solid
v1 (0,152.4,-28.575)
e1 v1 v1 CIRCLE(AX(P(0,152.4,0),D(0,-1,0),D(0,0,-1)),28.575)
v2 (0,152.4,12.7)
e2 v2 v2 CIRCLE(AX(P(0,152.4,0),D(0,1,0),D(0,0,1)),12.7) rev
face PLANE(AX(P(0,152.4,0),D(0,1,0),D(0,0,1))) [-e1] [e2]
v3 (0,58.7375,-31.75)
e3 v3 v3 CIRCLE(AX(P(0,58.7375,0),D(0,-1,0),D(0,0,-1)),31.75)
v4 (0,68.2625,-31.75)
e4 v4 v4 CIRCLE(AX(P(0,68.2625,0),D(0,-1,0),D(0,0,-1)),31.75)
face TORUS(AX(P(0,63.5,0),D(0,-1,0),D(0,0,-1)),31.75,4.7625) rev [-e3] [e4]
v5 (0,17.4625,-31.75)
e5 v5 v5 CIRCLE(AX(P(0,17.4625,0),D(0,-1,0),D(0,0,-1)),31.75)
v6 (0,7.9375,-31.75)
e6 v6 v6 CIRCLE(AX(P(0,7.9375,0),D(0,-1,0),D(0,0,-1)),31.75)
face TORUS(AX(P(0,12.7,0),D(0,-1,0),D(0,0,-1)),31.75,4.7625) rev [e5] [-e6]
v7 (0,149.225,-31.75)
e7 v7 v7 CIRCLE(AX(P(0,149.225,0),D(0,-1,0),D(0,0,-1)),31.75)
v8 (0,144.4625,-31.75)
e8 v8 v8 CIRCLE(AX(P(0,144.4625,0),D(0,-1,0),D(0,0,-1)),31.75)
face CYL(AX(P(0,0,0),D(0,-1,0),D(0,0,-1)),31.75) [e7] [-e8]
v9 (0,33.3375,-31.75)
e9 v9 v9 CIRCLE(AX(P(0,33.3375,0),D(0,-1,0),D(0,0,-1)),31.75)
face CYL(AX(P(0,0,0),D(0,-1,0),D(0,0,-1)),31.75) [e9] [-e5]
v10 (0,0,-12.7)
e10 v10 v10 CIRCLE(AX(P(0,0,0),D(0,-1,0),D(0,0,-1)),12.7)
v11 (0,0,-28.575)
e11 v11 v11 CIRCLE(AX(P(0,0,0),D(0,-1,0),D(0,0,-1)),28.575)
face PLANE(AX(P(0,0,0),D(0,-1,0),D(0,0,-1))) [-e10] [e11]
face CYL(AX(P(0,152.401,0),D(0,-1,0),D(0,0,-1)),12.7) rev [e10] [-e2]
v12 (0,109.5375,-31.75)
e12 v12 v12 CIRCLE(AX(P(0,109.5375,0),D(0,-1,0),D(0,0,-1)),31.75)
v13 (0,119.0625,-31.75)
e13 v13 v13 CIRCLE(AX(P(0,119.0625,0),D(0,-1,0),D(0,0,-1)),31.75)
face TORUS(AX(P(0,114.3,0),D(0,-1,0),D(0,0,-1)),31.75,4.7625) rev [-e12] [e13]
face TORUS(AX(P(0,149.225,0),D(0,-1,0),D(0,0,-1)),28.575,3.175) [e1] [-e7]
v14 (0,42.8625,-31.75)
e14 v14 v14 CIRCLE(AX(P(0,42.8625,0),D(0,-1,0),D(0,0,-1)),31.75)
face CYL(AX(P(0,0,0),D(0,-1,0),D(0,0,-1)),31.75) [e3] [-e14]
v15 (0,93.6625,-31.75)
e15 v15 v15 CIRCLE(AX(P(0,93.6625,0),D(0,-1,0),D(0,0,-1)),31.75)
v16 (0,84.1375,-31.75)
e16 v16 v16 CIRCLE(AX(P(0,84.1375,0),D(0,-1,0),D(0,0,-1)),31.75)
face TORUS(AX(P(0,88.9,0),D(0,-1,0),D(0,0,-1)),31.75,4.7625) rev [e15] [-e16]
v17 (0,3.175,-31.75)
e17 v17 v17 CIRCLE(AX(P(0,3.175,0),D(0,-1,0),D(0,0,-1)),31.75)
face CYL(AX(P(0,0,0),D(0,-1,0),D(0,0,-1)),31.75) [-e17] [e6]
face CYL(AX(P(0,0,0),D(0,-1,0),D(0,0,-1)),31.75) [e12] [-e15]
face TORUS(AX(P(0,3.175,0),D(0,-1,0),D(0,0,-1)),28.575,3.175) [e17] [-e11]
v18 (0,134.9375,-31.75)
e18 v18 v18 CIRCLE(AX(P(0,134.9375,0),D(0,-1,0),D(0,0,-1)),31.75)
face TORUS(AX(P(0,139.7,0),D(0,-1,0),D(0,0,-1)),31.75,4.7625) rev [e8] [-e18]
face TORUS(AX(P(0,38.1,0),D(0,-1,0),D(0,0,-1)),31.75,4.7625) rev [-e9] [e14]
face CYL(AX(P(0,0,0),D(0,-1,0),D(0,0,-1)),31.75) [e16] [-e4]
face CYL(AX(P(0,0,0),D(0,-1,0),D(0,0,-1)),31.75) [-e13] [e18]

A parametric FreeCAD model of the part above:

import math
import FreeCAD as App
import Part
import Sketcher
from FreeCAD import Vector
Q = App.Units.Quantity

doc = App.newDocument("Part")
params = doc.addObject("Spreadsheet::Sheet", "Params")
for row, (alias, value) in enumerate([
    ("sketch1_width", "6 in"),
    ("sketch1_radius", "0.125 in"),
    ("sketch1_radius2", "0.1875 in"),
    ("sketch1_height", "1.125 in"),
    ("revolution_angle", "360 deg"),
    ("sketch2_diameter", "1 in"),
], start=1):
    params.set(f"A{row}", alias)
    params.set(f"B{row}", "=" + value)
    params.setAlias(f"B{row}", alias)

body = doc.addObject("PartDesign::Body", "Body")

# Sketch on YZ plane
sketch1 = body.newObject("Sketcher::SketchObject", "Sketch")
sketch1.AttachmentSupport = (doc.getObject("YZ_Plane"), [""])
sketch1.MapMode = "FlatFace"
sketch1.addGeometry([
    Part.LineSegment(Vector(144.5, -31.8, 0), Vector(149.2, -31.8, 0)),  # 0
    Part.ArcOfCircle(Part.Circle(Vector(149.2, -28.6, 0), Vector(0, 0, 1), 3.2), math.radians(-90), math.radians(0)),  # 1
    Part.LineSegment(Vector(152.4, -28.6, 0), Vector(152.4, 0, 0)),  # 2
    Part.LineSegment(Vector(152.4, 0, 0), Vector(0, 0, 0)),  # 3
    Part.LineSegment(Vector(0, 0, 0), Vector(0, -28.6, 0)),  # 4
    Part.ArcOfCircle(Part.Circle(Vector(3.2, -28.6, 0), Vector(0, 0, 1), 3.2), math.radians(-180), math.radians(-90)),  # 5
    Part.LineSegment(Vector(3.2, -31.8, 0), Vector(7.9, -31.8, 0)),  # 6
    Part.ArcOfCircle(Part.Circle(Vector(12.7, -31.8, 0), Vector(0, 0, 1), 4.8), math.radians(0), math.radians(180)),  # 7
    Part.LineSegment(Vector(17.5, -31.8, 0), Vector(33.3, -31.8, 0)),  # 8
    Part.ArcOfCircle(Part.Circle(Vector(38.1, -31.8, 0), Vector(0, 0, 1), 4.8), math.radians(0), math.radians(180)),  # 9
    Part.LineSegment(Vector(42.9, -31.8, 0), Vector(58.7, -31.8, 0)),  # 10
    Part.ArcOfCircle(Part.Circle(Vector(63.5, -31.8, 0), Vector(0, 0, 1), 4.8), math.radians(0), math.radians(180)),  # 11
    Part.LineSegment(Vector(68.3, -31.8, 0), Vector(84.1, -31.8, 0)),  # 12
    Part.ArcOfCircle(Part.Circle(Vector(88.9, -31.8, 0), Vector(0, 0, 1), 4.8), math.radians(0), math.radians(180)),  # 13
    Part.LineSegment(Vector(93.7, -31.8, 0), Vector(109.5, -31.8, 0)),  # 14
    Part.ArcOfCircle(Part.Circle(Vector(114.3, -31.8, 0), Vector(0, 0, 1), 4.8), math.radians(0), math.radians(180)),  # 15
    Part.LineSegment(Vector(119.1, -31.8, 0), Vector(134.9, -31.8, 0)),  # 16
    Part.ArcOfCircle(Part.Circle(Vector(139.7, -31.8, 0), Vector(0, 0, 1), 4.8), math.radians(0), math.radians(180)),  # 17
], False)
sketch1.addConstraint([
    Sketcher.Constraint("Tangent", 0, 2, 1, 1),
    Sketcher.Constraint("Tangent", 1, 2, 2, 1),
    Sketcher.Constraint("Coincident", 2, 2, 3, 1),
    Sketcher.Constraint("Coincident", 3, 2, 4, 1),
    Sketcher.Constraint("Tangent", 4, 2, 5, 1),
    Sketcher.Constraint("Tangent", 5, 2, 6, 1),
    Sketcher.Constraint("Coincident", 6, 2, 7, 2),
    Sketcher.Constraint("Coincident", 7, 1, 8, 1),
    Sketcher.Constraint("Coincident", 8, 2, 9, 2),
    Sketcher.Constraint("Coincident", 9, 1, 10, 1),
    Sketcher.Constraint("Coincident", 10, 2, 11, 2),
    Sketcher.Constraint("Coincident", 11, 1, 12, 1),
    Sketcher.Constraint("Coincident", 12, 2, 13, 2),
    Sketcher.Constraint("Coincident", 13, 1, 14, 1),
    Sketcher.Constraint("Coincident", 14, 2, 15, 2),
    Sketcher.Constraint("Coincident", 15, 1, 16, 1),
    Sketcher.Constraint("Coincident", 16, 2, 17, 2),
    Sketcher.Constraint("Coincident", 17, 1, 0, 1),
    Sketcher.Constraint("Horizontal", 0),
    Sketcher.Constraint("Vertical", 2),
    Sketcher.Constraint("Horizontal", 3),
    Sketcher.Constraint("Vertical", 4),
    Sketcher.Constraint("Horizontal", 6),
    Sketcher.Constraint("Horizontal", 8),
    Sketcher.Constraint("Horizontal", 10),
    Sketcher.Constraint("Horizontal", 12),
    Sketcher.Constraint("Horizontal", 14),
    Sketcher.Constraint("Horizontal", 16),
    Sketcher.Constraint("Coincident", 3, 2, -1, 1),
    Sketcher.Constraint("Equal", 1, 5),
    Sketcher.Constraint("Equal", 7, 9),
    Sketcher.Constraint("Equal", 9, 11),
    Sketcher.Constraint("Equal", 11, 13),
    Sketcher.Constraint("Equal", 13, 15),
    Sketcher.Constraint("Equal", 15, 17),
    Sketcher.Constraint("Horizontal", 1, 3, 5, 3),
    Sketcher.Constraint("Horizontal", 7, 3, 9, 3),
    Sketcher.Constraint("Horizontal", 9, 3, 11, 3),
    Sketcher.Constraint("Horizontal", 11, 3, 13, 3),
    Sketcher.Constraint("Horizontal", 13, 3, 15, 3),
    Sketcher.Constraint("Horizontal", 15, 3, 17, 3),
    Sketcher.Constraint("Horizontal", 17, 3, 0, 2),
    Sketcher.Constraint("Horizontal", 6, 2, 7, 1),
    Sketcher.Constraint("Horizontal", 8, 2, 9, 1),
    Sketcher.Constraint("Horizontal", 10, 2, 11, 1),
    Sketcher.Constraint("Horizontal", 12, 2, 13, 1),
    Sketcher.Constraint("Horizontal", 14, 2, 15, 1),
    Sketcher.Constraint("Equal", 0, 6),
    Sketcher.Constraint("Equal", 8, 10),
    Sketcher.Constraint("Equal", 10, 12),
    Sketcher.Constraint("Equal", 12, 14),
    Sketcher.Constraint("Equal", 14, 16),
    Sketcher.Constraint("DistanceX", 3, 2, 3, 1, Q("6 in")),
    Sketcher.Constraint("Radius", 1, Q("0.125 in")),
    Sketcher.Constraint("Radius", 7, Q("0.1875 in")),
    Sketcher.Constraint("DistanceX", 7, 3, 9, 3, Q("1 in")),
    Sketcher.Constraint("DistanceY", 2, 1, 2, 2, Q("1.125 in")),
])
sketch1.setExpression("Constraints[52]", "Params.sketch1_width")
sketch1.setExpression("Constraints[53]", "Params.sketch1_radius")
sketch1.setExpression("Constraints[54]", "Params.sketch1_radius2")
sketch1.setExpression("Constraints[56]", "Params.sketch1_height")
revolution = body.newObject("PartDesign::Revolution", "Revolution")
revolution.Profile = sketch1
revolution.ReferenceAxis = (sketch1, ["H_Axis"])
revolution.setExpression("Angle", "Params.revolution_angle")

# Sketch on XZ plane
sketch2 = body.newObject("Sketcher::SketchObject", "Sketch001")
sketch2.AttachmentSupport = (doc.getObject("XZ_Plane"), [""])
sketch2.MapMode = "FlatFace"
sketch2.addGeometry(Part.Circle(Vector(0, 0, 0), Vector(0, 0, 1), 13), False)
sketch2.addConstraint([
    Sketcher.Constraint("Coincident", 0, 3, -1, 1),
    Sketcher.Constraint("Diameter", 0, Q("1 in")),
])
sketch2.setExpression("Constraints[1]", "Params.sketch2_diameter")
pocket1 = body.newObject("PartDesign::Pocket", "Pocket")
pocket1.Profile = sketch2
pocket1.Type = "UpToFirst"

doc.recompute()
